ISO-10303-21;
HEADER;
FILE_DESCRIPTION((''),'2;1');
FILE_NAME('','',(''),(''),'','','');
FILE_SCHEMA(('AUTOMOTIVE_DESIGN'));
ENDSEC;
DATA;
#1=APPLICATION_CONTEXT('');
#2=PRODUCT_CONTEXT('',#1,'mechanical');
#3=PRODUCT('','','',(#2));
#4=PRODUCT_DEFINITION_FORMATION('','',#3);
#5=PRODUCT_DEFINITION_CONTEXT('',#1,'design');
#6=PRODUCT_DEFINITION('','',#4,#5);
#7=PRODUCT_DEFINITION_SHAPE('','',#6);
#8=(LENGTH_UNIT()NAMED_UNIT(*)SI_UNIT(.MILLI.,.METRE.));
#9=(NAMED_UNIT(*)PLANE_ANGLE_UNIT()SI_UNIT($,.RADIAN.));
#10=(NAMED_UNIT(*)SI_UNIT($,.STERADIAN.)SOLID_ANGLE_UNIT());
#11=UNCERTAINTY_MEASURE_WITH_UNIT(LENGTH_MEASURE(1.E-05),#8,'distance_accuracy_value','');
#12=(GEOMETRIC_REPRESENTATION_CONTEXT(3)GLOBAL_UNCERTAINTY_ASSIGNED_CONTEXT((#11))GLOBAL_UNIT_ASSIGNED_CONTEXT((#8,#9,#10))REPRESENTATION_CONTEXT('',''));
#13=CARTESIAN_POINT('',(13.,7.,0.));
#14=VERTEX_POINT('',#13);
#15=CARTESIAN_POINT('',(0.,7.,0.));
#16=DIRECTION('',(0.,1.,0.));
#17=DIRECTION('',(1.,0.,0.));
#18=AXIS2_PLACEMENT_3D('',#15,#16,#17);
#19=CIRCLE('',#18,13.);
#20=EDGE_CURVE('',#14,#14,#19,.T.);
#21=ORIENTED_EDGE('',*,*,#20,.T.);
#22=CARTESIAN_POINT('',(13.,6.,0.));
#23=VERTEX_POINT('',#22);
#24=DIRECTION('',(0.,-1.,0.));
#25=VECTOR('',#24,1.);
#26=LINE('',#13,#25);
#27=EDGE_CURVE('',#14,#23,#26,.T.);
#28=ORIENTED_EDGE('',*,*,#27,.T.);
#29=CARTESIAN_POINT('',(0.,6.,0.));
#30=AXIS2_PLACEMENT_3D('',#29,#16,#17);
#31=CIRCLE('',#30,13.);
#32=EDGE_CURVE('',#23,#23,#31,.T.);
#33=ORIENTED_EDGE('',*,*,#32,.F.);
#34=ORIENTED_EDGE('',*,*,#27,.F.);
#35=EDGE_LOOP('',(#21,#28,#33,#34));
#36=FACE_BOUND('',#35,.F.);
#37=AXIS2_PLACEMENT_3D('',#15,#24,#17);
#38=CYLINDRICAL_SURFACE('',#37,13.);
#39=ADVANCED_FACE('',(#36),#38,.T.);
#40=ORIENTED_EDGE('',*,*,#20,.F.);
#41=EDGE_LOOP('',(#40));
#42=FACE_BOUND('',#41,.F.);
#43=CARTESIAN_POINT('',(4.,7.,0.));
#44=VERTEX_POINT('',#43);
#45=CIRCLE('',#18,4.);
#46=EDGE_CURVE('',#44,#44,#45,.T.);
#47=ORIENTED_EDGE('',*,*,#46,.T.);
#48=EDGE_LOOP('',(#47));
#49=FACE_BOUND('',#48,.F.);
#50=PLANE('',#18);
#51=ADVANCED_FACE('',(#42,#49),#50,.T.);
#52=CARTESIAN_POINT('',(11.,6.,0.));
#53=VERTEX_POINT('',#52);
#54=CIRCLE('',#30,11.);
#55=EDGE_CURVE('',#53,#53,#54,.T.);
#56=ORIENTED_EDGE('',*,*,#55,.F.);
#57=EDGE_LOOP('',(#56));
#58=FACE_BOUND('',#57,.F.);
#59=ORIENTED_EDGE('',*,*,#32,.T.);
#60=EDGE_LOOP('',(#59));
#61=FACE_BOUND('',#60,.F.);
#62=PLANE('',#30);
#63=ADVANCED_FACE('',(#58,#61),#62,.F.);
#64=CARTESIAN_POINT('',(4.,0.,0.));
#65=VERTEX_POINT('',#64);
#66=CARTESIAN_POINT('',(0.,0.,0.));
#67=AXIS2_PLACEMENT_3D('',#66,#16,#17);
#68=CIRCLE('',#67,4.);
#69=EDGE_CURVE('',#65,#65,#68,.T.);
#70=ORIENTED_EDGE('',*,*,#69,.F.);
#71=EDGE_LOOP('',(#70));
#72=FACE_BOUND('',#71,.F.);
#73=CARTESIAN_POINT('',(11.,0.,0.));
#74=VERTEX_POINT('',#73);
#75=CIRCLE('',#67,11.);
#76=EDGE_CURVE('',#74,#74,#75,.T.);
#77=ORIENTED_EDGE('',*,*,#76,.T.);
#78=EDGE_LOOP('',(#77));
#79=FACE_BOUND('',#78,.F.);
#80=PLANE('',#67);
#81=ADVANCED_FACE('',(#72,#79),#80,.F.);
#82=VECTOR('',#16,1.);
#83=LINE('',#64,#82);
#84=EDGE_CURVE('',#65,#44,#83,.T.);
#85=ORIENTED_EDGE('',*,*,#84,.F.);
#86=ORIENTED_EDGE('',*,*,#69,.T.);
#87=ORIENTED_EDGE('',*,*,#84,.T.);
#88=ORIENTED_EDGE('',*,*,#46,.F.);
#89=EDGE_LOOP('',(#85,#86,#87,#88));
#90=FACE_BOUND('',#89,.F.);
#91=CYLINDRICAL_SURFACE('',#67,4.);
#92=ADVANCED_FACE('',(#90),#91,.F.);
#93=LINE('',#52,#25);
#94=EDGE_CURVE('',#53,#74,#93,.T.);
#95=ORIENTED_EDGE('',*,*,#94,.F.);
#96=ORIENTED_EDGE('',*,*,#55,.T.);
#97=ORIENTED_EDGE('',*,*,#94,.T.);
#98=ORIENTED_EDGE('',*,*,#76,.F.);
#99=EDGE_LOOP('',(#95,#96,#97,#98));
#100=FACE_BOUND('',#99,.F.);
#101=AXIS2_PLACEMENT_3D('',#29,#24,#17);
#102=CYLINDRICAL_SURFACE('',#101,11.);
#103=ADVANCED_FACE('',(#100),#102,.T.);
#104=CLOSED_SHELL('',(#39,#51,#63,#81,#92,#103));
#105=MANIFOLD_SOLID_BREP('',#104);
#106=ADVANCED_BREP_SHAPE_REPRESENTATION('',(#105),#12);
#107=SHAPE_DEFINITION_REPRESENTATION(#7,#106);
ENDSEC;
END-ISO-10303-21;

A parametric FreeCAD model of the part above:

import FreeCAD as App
import Part
import Sketcher


def add_polygon(sketch, points):
    """Adds a closed chain of lines whose ends are joined by coincident constraints."""
    first, n = sketch.GeometryCount, len(points)
    for a, b in zip(points, points[1:] + points[:1]):
        sketch.addGeometry(Part.LineSegment(App.Vector(*a, 0), App.Vector(*b, 0)), False)
    for i in range(n):
        sketch.addConstraint(Sketcher.Constraint("Coincident", first + i, 2, first + (i + 1) % n, 1))

doc = App.newDocument("Part")
body = doc.addObject("PartDesign::Body", "Body")

# Sketch on XY plane
sketch1 = doc.addObject("Sketcher::SketchObject", "Sketch")
body.addObject(sketch1)
sketch1.AttachmentSupport = (doc.XY_Plane, [""])
sketch1.MapMode = "FlatFace"
add_polygon(sketch1, [(13, 7), (4, 7), (4, 0), (11, 0), (11, 6), (13, 6)])  # lines 0-5
sketch1.addConstraint(Sketcher.Constraint("Horizontal", 0))
sketch1.addConstraint(Sketcher.Constraint("Vertical", 1))
sketch1.addConstraint(Sketcher.Constraint("Horizontal", 2))
sketch1.addConstraint(Sketcher.Constraint("Vertical", 3))
sketch1.addConstraint(Sketcher.Constraint("Horizontal", 4))
sketch1.addConstraint(Sketcher.Constraint("Vertical", 5))
sketch1.addConstraint(Sketcher.Constraint("PointOnObject", 1, 2, -1))
sketch1.addConstraint(Sketcher.Constraint("Equal", 2, 1))
sketch1.addConstraint(Sketcher.Constraint("DistanceX", 0, 2, 0, 1, 9.0))
sketch1.addConstraint(Sketcher.Constraint("DistanceX", 2, 1, 2, 2, 7.0))
sketch1.addConstraint(Sketcher.Constraint("DistanceY", 3, 1, 3, 2, 6.0))
sketch1.addConstraint(Sketcher.Constraint("DistanceX", -1, 1, 0, 2, 4.0))
revolution = doc.addObject("PartDesign::Revolution", "Revolution")
body.addObject(revolution)
revolution.Profile = sketch1
revolution.ReferenceAxis = (sketch1, ["V_Axis"])
revolution.Angle = 360

doc.recompute()
